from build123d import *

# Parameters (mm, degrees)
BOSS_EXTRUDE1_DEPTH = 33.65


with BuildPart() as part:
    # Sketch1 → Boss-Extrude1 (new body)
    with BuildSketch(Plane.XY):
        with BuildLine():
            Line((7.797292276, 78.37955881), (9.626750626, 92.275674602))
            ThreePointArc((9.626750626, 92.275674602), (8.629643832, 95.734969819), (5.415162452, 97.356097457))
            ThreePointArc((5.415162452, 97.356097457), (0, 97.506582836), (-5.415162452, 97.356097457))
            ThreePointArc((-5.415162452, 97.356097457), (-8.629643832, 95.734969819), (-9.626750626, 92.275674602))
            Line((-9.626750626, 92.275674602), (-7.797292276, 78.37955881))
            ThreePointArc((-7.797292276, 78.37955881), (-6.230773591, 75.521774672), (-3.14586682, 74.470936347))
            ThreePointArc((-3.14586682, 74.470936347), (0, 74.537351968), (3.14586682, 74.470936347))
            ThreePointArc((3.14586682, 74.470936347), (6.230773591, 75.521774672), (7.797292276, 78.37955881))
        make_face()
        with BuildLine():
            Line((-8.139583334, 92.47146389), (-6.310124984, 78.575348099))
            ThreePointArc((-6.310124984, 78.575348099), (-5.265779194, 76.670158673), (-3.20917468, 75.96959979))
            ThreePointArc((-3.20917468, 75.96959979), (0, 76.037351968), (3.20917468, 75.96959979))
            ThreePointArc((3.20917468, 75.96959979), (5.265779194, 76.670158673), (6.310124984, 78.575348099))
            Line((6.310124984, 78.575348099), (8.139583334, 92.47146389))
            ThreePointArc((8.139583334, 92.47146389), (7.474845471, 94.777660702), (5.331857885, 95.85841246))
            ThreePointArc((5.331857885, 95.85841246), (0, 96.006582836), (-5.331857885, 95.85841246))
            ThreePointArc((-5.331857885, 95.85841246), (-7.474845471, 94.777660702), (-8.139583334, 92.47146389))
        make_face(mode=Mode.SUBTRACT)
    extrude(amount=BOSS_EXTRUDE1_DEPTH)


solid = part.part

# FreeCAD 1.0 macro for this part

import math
import FreeCAD as App
import Part
import Sketcher
Q = App.Units.Quantity

doc = App.newDocument("Part")
params = doc.addObject("Spreadsheet::Sheet", "Params")
for row, (alias, value) in enumerate([
    ("sketch1_radius", "3 mm"),
    ("sketch1_radius2", "4.5 mm"),
    ("pad1_length", "33.65 mm"),
], start=1):
    params.set(f"A{row}", alias)
    params.set(f"B{row}", "=" + value)
    params.setAlias(f"B{row}", alias)

body = doc.addObject("PartDesign::Body", "Body")

# Sketch on XY plane
sketch1 = body.newObject("Sketcher::SketchObject", "Sketch")
sketch1.AttachmentSupport = (doc.getObject("XY_Plane"), [""])
sketch1.MapMode = "FlatFace"
sketch1.addGeometry([
    Part.LineSegment(App.Vector(7.8, 78.4, 0), App.Vector(9.6, 92.3, 0)),  # 0
    Part.ArcOfCircle(Part.Circle(App.Vector(5.2, 92.9, 0), App.Vector(0, 0, 1), 4.5), math.radians(-8), math.radians(87)),  # 1
    Part.ArcOfCircle(Part.Circle(App.Vector(0, 0, 0), App.Vector(0, 0, 1), 97.5), math.radians(86.82), math.radians(93.18)),  # 2
    Part.ArcOfCircle(Part.Circle(App.Vector(-5.2, 92.9, 0), App.Vector(0, 0, 1), 4.5), math.radians(93), math.radians(188)),  # 3
    Part.LineSegment(App.Vector(-9.6, 92.3, 0), App.Vector(-7.8, 78.4, 0)),  # 4
    Part.ArcOfCircle(Part.Circle(App.Vector(-3.3, 79, 0), App.Vector(0, 0, 1), 4.5), math.radians(-173), math.radians(-88)),  # 5
    Part.ArcOfCircle(Part.Circle(App.Vector(0, 0, 0), App.Vector(0, 0, 1), 74.5), math.radians(87.58), math.radians(92.42)),  # 6
    Part.ArcOfCircle(Part.Circle(App.Vector(3.3, 79, 0), App.Vector(0, 0, 1), 4.5), math.radians(-92), math.radians(-7)),  # 7
    Part.LineSegment(App.Vector(-6.3, 78.6, 0), App.Vector(-8.1, 92.5, 0)),  # 8
    Part.ArcOfCircle(Part.Circle(App.Vector(-5.2, 92.9, 0), App.Vector(0, 0, 1), 3), math.radians(93), math.radians(188)),  # 9
    Part.ArcOfCircle(Part.Circle(App.Vector(0, 0, 0), App.Vector(0, 0, 1), 96), math.radians(86.82), math.radians(93.18)),  # 10
    Part.ArcOfCircle(Part.Circle(App.Vector(5.2, 92.9, 0), App.Vector(0, 0, 1), 3), math.radians(-8), math.radians(87)),  # 11
    Part.LineSegment(App.Vector(8.1, 92.5, 0), App.Vector(6.3, 78.6, 0)),  # 12
    Part.ArcOfCircle(Part.Circle(App.Vector(3.3, 79, 0), App.Vector(0, 0, 1), 3), math.radians(-92), math.radians(-7)),  # 13
    Part.ArcOfCircle(Part.Circle(App.Vector(0, 0, 0), App.Vector(0, 0, 1), 76), math.radians(87.58), math.radians(92.42)),  # 14
    Part.ArcOfCircle(Part.Circle(App.Vector(-3.3, 79, 0), App.Vector(0, 0, 1), 3), math.radians(-173), math.radians(-88)),  # 15
], False)
sketch1.addConstraint([
    Sketcher.Constraint("Tangent", 0, 2, 1, 1),
    Sketcher.Constraint("Tangent", 1, 2, 2, 1),
    Sketcher.Constraint("Tangent", 2, 2, 3, 1),
    Sketcher.Constraint("Tangent", 3, 2, 4, 1),
    Sketcher.Constraint("Tangent", 4, 2, 5, 1),
    Sketcher.Constraint("Tangent", 5, 2, 6, 2),
    Sketcher.Constraint("Tangent", 6, 1, 7, 1),
    Sketcher.Constraint("Tangent", 7, 2, 0, 1),
    Sketcher.Constraint("Tangent", 8, 2, 9, 2),
    Sketcher.Constraint("Tangent", 9, 1, 10, 2),
    Sketcher.Constraint("Tangent", 10, 1, 11, 2),
    Sketcher.Constraint("Tangent", 11, 1, 12, 1),
    Sketcher.Constraint("Tangent", 12, 2, 13, 2),
    Sketcher.Constraint("Tangent", 13, 1, 14, 1),
    Sketcher.Constraint("Tangent", 14, 2, 15, 2),
    Sketcher.Constraint("Tangent", 15, 1, 8, 1),
    Sketcher.Constraint("Coincident", 2, 3, -1, 1),
    Sketcher.Constraint("Coincident", 6, 3, -1, 1),
    Sketcher.Constraint("Coincident", 10, 3, -1, 1),
    Sketcher.Constraint("Coincident", 14, 3, -1, 1),
    Sketcher.Constraint("Coincident", 9, 3, 3, 3),
    Sketcher.Constraint("Coincident", 11, 3, 1, 3),
    Sketcher.Constraint("Coincident", 13, 3, 7, 3),
    Sketcher.Constraint("Coincident", 15, 3, 5, 3),
    Sketcher.Constraint("Equal", 1, 3),
    Sketcher.Constraint("Equal", 3, 5),
    Sketcher.Constraint("Equal", 5, 7),
    Sketcher.Constraint("Equal", 11, 13),
    Sketcher.Constraint("Symmetric", 0, 2, 3, 2, -2),
    Sketcher.Constraint("Radius", 9, Q("3 mm")),
    Sketcher.Constraint("Radius", 1, Q("4.5 mm")),
    Sketcher.Constraint("Angle", 0, Q("82.5 deg")),
    Sketcher.Constraint("Radius", 2, Q("97.506583 mm")),
    Sketcher.Constraint("Radius", 6, Q("74.537352 mm")),
    Sketcher.Constraint("DistanceX", 3, 3, 0, 2, Q("14.791999 mm")),
])
sketch1.setExpression("Constraints[29]", "Params.sketch1_radius")
sketch1.setExpression("Constraints[30]", "Params.sketch1_radius2")
pad1 = body.newObject("PartDesign::Pad", "Pad")
pad1.Profile = sketch1
pad1.setExpression("Length", "Params.pad1_length")

doc.recompute()
